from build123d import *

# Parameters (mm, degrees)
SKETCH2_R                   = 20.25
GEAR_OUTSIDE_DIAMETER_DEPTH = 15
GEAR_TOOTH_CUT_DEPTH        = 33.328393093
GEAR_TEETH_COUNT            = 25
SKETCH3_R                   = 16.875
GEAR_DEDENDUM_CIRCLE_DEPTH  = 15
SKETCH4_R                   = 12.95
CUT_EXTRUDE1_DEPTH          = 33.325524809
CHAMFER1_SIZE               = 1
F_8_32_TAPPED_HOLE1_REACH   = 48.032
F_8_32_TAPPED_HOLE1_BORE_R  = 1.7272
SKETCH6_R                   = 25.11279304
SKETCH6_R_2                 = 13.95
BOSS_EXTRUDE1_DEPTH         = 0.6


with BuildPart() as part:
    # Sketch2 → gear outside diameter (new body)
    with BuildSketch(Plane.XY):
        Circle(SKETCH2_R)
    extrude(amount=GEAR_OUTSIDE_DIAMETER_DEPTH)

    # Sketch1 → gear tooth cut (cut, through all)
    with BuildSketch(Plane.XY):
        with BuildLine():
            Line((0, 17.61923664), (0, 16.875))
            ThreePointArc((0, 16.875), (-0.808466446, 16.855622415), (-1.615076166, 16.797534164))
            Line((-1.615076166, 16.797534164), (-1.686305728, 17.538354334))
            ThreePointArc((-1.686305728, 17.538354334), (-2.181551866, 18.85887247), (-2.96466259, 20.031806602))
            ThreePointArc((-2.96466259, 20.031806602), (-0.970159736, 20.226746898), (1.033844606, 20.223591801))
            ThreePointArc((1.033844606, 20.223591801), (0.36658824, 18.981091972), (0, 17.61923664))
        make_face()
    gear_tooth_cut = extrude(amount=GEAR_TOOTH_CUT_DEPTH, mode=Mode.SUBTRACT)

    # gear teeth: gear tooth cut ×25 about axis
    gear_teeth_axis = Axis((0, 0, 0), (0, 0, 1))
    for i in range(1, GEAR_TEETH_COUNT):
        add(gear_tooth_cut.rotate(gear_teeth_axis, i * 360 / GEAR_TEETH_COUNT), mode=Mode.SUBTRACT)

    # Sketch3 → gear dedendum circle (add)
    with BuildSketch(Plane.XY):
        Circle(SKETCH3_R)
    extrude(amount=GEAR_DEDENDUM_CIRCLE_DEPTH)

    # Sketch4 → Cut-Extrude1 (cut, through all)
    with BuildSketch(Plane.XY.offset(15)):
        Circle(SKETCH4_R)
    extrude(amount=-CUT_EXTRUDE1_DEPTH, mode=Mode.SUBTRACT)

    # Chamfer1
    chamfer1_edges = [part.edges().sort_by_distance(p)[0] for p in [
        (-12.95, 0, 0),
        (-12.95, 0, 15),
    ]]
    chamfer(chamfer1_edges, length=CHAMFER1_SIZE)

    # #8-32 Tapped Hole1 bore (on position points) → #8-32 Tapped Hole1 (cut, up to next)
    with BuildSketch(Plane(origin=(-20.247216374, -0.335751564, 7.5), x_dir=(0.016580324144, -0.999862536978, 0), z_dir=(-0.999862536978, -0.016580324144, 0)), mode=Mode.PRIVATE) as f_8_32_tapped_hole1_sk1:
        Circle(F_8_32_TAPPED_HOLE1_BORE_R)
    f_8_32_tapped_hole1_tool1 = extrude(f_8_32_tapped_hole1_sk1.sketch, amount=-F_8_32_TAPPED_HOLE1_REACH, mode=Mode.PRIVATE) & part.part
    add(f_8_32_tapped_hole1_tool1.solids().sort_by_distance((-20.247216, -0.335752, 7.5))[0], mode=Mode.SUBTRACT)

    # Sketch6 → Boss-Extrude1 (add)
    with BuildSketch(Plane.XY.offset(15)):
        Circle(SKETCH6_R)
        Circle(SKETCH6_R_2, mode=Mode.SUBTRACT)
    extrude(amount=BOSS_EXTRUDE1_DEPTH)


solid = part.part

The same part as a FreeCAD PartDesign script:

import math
import FreeCAD as App
import Part
import Sketcher


def edges_at(feature, points):
    """Names of the edges that pass closest to the given points."""
    edges = feature.Shape.Edges
    near = lambda p: min(range(len(edges)), key=lambda i: edges[i].distToShape(Part.Vertex(*p))[0])
    return sorted({f"Edge{near(p) + 1}" for p in points})

doc = App.newDocument("Part")
body = doc.addObject("PartDesign::Body", "Body")

sketch1 = body.newObject("Sketcher::SketchObject", "Sketch")
sketch1.AttachmentSupport = (doc.getObject("XY_Plane"), [""])
sketch1.MapMode = "FlatFace"
sketch1.addGeometry(Part.Circle(App.Vector(0, 0, 0), App.Vector(0, 0, 1), 20), False)
sketch1.addConstraint([
    Sketcher.Constraint("Coincident", 0, 3, -1, 1),
    Sketcher.Constraint("Diameter", 0, 40.5),
])
pad1 = body.newObject("PartDesign::Pad", "Pad")
pad1.Profile = sketch1
pad1.Length = 15

sketch2 = body.newObject("Sketcher::SketchObject", "Sketch001")
sketch2.AttachmentSupport = (doc.getObject("XY_Plane"), [""])
sketch2.MapMode = "FlatFace"
sketch2.addGeometry([
    Part.LineSegment(App.Vector(0, 16.9, 0), App.Vector(0, 17.6, 0)),
    Part.ArcOfCircle(Part.Circle(App.Vector(6.1, 16.7, 0), App.Vector(0, 0, 1), 6.1), math.radians(145), math.radians(172)),
    Part.ArcOfCircle(Part.Circle(App.Vector(0, 0, 0), App.Vector(0, 0, 1), 20.3), math.radians(87.07), math.radians(98.42)),
    Part.ArcOfCircle(Part.Circle(App.Vector(-7.7, 16.1, 0), App.Vector(0, 0, 1), 6.1), math.radians(14), math.radians(40)),
    Part.LineSegment(App.Vector(-1.7, 17.5, 0), App.Vector(-1.6, 16.8, 0)),
    Part.ArcOfCircle(Part.Circle(App.Vector(0, 0, 0), App.Vector(0, 0, 1), 16.9), math.radians(90), math.radians(95.49)),
], False)
sketch2.addConstraint([
    Sketcher.Constraint("Coincident", 0, 2, 1, 2),
    Sketcher.Constraint("Coincident", 1, 1, 2, 1),
    Sketcher.Constraint("Coincident", 2, 2, 3, 2),
    Sketcher.Constraint("Coincident", 3, 1, 4, 1),
    Sketcher.Constraint("Coincident", 4, 2, 5, 2),
    Sketcher.Constraint("Coincident", 5, 1, 0, 1),
    Sketcher.Constraint("Vertical", 0),
    Sketcher.Constraint("Coincident", 2, 3, -1, 1),
    Sketcher.Constraint("Coincident", 5, 3, -1, 1),
    Sketcher.Constraint("Equal", 1, 3),
    Sketcher.Constraint("PointOnObject", 0, 2, -2),
    Sketcher.Constraint("Radius", 2, 20.25),
    Sketcher.Constraint("Radius", 5, 16.875),
    Sketcher.Constraint("Radius", 1, 6.148644),
    Sketcher.Constraint("DistanceY", 1, 3, 1, 1, 3.511102),
    Sketcher.Constraint("DistanceY", 0, 1, 0, 2, 0.744237),
    Sketcher.Constraint("DistanceY", -1, 1, 3, 3, 16.053729),
    Sketcher.Constraint("DistanceX", 3, 3, 1, 3, 13.734439),
    Sketcher.Constraint("DistanceX", 3, 1, 1, 1, 2.72015),
    Sketcher.Constraint("DistanceX", 3, 1, 4, 2, 0.07123),
])
pocket1 = body.newObject("PartDesign::Pocket", "Pocket")
pocket1.Profile = sketch2
pocket1.Type = "ThroughAll"
pocket1.Reversed = True
doc.recompute()

polarpattern = body.newObject("PartDesign::PolarPattern", "PolarPattern")
polarpattern.Originals = [pocket1]
polarpattern.Axis = (doc.getObject("Z_Axis"), [""])
polarpattern.Angle = 360
polarpattern.Occurrences = 25
body.Tip = polarpattern

sketch3 = body.newObject("Sketcher::SketchObject", "Sketch002")
sketch3.AttachmentSupport = (doc.getObject("XY_Plane"), [""])
sketch3.MapMode = "FlatFace"
sketch3.addGeometry(Part.Circle(App.Vector(0, 0, 0), App.Vector(0, 0, 1), 17), False)
sketch3.addConstraint([
    Sketcher.Constraint("Coincident", 0, 3, -1, 1),
    Sketcher.Constraint("Diameter", 0, 33.75),
])
pad2 = body.newObject("PartDesign::Pad", "Pad001")
pad2.Profile = sketch3
pad2.Length = 15

sketch4 = body.newObject("Sketcher::SketchObject", "Sketch003")
sketch4.AttachmentSupport = (doc.getObject("XY_Plane"), [""])
sketch4.MapMode = "FlatFace"
sketch4.AttachmentOffset = App.Placement(App.Vector(0, 0, 15), App.Rotation())
sketch4.addGeometry(Part.Circle(App.Vector(0, 0, 0), App.Vector(0, 0, 1), 13), False)
sketch4.addConstraint([
    Sketcher.Constraint("Coincident", 0, 3, -1, 1),
    Sketcher.Constraint("Diameter", 0, 25.9),
])
pocket2 = body.newObject("PartDesign::Pocket", "Pocket001")
pocket2.Profile = sketch4
pocket2.Type = "ThroughAll"
doc.recompute()

chamfer = body.newObject("PartDesign::Chamfer", "Chamfer")
chamfer.Base = (pocket2, edges_at(pocket2, [(-12.95, 0, 0), (-12.95, 0, 15)]))
chamfer.Size = 1

sketch5 = body.newObject("Sketcher::SketchObject", "Sketch004")
sketch5.Placement = App.Placement(App.Vector(-20.247216, -0.335752, 7.5), App.Rotation(App.Vector(0.016580324, -0.999862537, 0), App.Vector(0, 0, 1), App.Vector(-0.999862537, -0.016580324, 0), "ZXY"))
sketch5.addGeometry(Part.Circle(App.Vector(0, 0, 0), App.Vector(0, 0, 1), 1.7), False)
sketch5.addConstraint([
    Sketcher.Constraint("Coincident", 0, 3, -1, 1),
    Sketcher.Constraint("Diameter", 0, 3.4544),
])
pocket3 = body.newObject("PartDesign::Pocket", "Pocket002")
pocket3.Profile = sketch5
pocket3.Length = 7.415699

sketch6 = body.newObject("Sketcher::SketchObject", "Sketch005")
sketch6.AttachmentSupport = (doc.getObject("XY_Plane"), [""])
sketch6.MapMode = "FlatFace"
sketch6.AttachmentOffset = App.Placement(App.Vector(0, 0, 15), App.Rotation())
sketch6.addGeometry([
    Part.Circle(App.Vector(0, 0, 0), App.Vector(0, 0, 1), 25),
    Part.Circle(App.Vector(0, 0, 0), App.Vector(0, 0, 1), 14),
], False)
sketch6.addConstraint([
    Sketcher.Constraint("Coincident", 0, 3, -1, 1),
    Sketcher.Constraint("Coincident", 1, 3, -1, 1),
    Sketcher.Constraint("Diameter", 1, 27.9),
    Sketcher.Constraint("Diameter", 0, 50.225586),
])
pad3 = body.newObject("PartDesign::Pad", "Pad002")
pad3.Profile = sketch6
pad3.Length = 0.6

doc.recompute()
